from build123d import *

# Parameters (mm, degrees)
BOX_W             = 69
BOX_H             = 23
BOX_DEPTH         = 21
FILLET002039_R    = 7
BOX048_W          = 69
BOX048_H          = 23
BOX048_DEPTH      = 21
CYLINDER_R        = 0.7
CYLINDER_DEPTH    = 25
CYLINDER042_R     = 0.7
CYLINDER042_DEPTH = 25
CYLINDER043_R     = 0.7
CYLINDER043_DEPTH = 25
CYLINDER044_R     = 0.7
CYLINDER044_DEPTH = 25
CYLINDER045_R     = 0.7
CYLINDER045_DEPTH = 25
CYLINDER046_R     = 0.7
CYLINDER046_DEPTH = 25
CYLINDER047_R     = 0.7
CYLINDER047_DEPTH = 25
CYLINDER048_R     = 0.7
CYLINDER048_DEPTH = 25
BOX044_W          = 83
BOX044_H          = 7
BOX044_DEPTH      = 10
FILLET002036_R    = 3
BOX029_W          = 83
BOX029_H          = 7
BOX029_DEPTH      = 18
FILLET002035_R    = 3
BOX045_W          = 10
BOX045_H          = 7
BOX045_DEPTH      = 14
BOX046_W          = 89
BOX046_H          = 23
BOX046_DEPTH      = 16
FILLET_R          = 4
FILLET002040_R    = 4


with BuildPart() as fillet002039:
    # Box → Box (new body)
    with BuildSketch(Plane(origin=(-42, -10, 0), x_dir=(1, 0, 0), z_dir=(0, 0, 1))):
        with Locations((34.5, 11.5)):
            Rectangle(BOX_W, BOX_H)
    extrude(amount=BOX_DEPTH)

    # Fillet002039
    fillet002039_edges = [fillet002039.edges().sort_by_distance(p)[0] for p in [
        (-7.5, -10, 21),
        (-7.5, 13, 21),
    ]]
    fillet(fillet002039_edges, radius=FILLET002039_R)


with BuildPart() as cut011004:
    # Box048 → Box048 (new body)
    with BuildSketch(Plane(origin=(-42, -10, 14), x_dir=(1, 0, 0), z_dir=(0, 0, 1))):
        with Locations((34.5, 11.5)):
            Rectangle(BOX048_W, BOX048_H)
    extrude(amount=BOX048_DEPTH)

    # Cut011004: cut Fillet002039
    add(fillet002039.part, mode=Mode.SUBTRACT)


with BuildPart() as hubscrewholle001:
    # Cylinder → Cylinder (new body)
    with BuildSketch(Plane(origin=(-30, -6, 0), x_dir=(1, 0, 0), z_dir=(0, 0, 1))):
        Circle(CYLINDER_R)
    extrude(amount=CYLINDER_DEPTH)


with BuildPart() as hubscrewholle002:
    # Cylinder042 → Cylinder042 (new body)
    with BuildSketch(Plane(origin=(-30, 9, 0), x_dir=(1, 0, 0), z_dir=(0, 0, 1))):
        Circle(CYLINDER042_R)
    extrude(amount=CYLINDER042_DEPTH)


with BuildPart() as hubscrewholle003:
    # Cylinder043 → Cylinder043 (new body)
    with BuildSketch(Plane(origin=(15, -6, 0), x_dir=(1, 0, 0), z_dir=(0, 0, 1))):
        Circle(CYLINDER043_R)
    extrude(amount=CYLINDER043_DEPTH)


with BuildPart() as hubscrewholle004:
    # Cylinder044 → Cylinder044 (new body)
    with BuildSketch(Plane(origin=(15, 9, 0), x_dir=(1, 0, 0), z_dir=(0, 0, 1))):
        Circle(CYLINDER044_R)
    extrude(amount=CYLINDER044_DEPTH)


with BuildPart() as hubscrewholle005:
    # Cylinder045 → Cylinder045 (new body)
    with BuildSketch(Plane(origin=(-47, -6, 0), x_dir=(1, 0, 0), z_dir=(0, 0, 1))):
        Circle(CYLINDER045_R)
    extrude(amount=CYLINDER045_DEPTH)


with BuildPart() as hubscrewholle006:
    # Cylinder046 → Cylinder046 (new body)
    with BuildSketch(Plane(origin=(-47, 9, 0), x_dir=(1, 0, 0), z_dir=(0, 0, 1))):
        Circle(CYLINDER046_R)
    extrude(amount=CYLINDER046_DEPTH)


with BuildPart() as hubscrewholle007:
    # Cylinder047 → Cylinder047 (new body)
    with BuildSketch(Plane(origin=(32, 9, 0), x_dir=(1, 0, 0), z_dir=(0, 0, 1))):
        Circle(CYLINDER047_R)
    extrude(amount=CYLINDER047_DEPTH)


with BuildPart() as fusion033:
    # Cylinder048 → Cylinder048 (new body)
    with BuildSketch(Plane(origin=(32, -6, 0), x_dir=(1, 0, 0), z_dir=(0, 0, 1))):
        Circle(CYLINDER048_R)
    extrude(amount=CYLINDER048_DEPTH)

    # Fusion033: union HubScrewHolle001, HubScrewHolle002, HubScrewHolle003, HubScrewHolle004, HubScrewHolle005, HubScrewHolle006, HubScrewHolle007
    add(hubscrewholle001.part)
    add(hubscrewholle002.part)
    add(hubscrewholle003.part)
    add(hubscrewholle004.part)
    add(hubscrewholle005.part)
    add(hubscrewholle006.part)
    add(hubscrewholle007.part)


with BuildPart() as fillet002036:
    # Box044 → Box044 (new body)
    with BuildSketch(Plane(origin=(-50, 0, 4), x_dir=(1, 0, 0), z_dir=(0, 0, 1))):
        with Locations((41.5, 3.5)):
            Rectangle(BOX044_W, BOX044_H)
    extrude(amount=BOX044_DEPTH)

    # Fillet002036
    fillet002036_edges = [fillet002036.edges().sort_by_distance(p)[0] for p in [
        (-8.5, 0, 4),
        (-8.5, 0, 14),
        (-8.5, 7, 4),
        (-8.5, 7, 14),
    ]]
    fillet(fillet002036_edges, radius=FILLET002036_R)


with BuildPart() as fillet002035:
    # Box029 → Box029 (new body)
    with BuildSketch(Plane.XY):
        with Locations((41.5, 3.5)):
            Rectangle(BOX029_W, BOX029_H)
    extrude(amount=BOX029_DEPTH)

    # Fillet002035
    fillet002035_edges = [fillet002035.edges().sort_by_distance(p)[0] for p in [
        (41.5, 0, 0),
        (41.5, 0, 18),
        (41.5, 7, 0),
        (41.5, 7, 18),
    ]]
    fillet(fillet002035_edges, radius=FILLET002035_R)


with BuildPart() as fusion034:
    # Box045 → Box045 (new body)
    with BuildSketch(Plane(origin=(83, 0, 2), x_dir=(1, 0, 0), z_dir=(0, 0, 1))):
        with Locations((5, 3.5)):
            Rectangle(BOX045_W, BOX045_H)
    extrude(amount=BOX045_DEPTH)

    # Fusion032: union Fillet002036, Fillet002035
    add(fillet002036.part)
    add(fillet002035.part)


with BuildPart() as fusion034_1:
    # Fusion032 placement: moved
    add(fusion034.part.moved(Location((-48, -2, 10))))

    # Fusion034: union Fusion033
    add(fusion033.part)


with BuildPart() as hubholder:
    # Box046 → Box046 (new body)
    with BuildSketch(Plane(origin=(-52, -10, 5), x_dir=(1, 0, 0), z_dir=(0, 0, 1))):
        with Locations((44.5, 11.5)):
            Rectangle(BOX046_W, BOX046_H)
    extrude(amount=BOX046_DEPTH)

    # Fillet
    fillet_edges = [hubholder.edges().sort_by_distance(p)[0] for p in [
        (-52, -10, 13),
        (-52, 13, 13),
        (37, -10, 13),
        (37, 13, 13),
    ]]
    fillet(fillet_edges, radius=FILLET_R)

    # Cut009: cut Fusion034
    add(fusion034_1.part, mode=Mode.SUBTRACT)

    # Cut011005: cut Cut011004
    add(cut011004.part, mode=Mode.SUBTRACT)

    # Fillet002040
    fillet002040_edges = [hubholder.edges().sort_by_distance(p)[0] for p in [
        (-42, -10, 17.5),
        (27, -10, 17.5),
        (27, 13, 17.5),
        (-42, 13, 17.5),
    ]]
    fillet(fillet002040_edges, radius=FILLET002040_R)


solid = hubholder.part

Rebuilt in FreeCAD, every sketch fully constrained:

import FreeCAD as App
import Part
import Sketcher

V = App.Vector


def edges_at(feature, points):
    """Names of the edges that pass closest to the given points."""
    edges = feature.Shape.Edges
    near = lambda p: min(range(len(edges)), key=lambda i: edges[i].distToShape(Part.Vertex(*p))[0])
    return sorted({f"Edge{near(p) + 1}" for p in points})


def add_polygon(sketch, points):
    """Adds a closed chain of lines whose ends are joined by coincident constraints."""
    first, n = sketch.GeometryCount, len(points)
    for a, b in zip(points, points[1:] + points[:1]):
        sketch.addGeometry(Part.LineSegment(App.Vector(*a, 0), App.Vector(*b, 0)), False)
    for i in range(n):
        sketch.addConstraint(Sketcher.Constraint("Coincident", first + i, 2, first + (i + 1) % n, 1))

doc = App.newDocument("Part")
params = doc.addObject("Spreadsheet::Sheet", "Params")
for row, (alias, value) in enumerate([
    ("sketch1_width", "69 mm"),
    ("sketch1_height", "23 mm"),
    ("pad1_length", "21 mm"),
    ("fillet_radius", "7 mm"),
    ("sketch2_width", "69 mm"),
    ("sketch2_height", "23 mm"),
    ("pad2_length", "21 mm"),
    ("sketch3_diameter", "1.4 mm"),
    ("pad3_length", "25 mm"),
    ("sketch4_diameter", "1.4 mm"),
    ("pad4_length", "25 mm"),
    ("sketch5_diameter", "1.4 mm"),
    ("pad5_length", "25 mm"),
    ("sketch6_diameter", "1.4 mm"),
    ("pad6_length", "25 mm"),
    ("sketch7_diameter", "1.4 mm"),
    ("pad7_length", "25 mm"),
    ("sketch8_diameter", "1.4 mm"),
    ("pad8_length", "25 mm"),
    ("sketch9_diameter", "1.4 mm"),
    ("pad9_length", "25 mm"),
    ("sketch10_diameter", "1.4 mm"),
    ("pad10_length", "25 mm"),
    ("sketch11_width", "83 mm"),
    ("sketch11_height", "7 mm"),
    ("pad11_length", "10 mm"),
    ("fillet2_radius", "3 mm"),
    ("sketch12_width", "83 mm"),
    ("sketch12_height", "7 mm"),
    ("pad12_length", "18 mm"),
    ("fillet3_radius", "3 mm"),
    ("sketch13_width", "10 mm"),
    ("sketch13_height", "7 mm"),
    ("pad13_length", "14 mm"),
    ("sketch14_width", "89 mm"),
    ("sketch14_height", "23 mm"),
    ("pad14_length", "16 mm"),
    ("fillet4_radius", "4 mm"),
    ("fillet5_radius", "4 mm"),
], start=1):
    params.set(f"A{row}", alias)
    params.set(f"B{row}", "=" + value)
    params.setAlias(f"B{row}", alias)

body = doc.addObject("PartDesign::Body", "Body")

# Sketch on XY plane
sketch1 = body.newObject("Sketcher::SketchObject", "Sketch")
sketch1.AttachmentSupport = (doc.getObject("XY_Plane"), [""])
sketch1.MapMode = "FlatFace"
add_polygon(sketch1, [(-42, 13), (-42, -10), (27, -10), (27, 13)])  # lines 0-3
sketch1.addConstraint([
    Sketcher.Constraint("Vertical", 0),
    Sketcher.Constraint("Horizontal", 1),
    Sketcher.Constraint("Vertical", 2),
    Sketcher.Constraint("Horizontal", 3),
    Sketcher.Constraint("DistanceX", 1, 1, 1, 2, 69.0),
    Sketcher.Constraint("DistanceY", 0, 2, 0, 1, 23.0),
    Sketcher.Constraint("DistanceX", 0, 2, -1, 1, 42.0),
    Sketcher.Constraint("DistanceY", 0, 2, -1, 1, 10.0),
])
sketch1.setExpression("Constraints[8]", "Params.sketch1_width")
sketch1.setExpression("Constraints[9]", "Params.sketch1_height")
pad1 = body.newObject("PartDesign::Pad", "Pad")
pad1.Profile = sketch1
pad1.setExpression("Length", "Params.pad1_length")
doc.recompute()

fillet = body.newObject("PartDesign::Fillet", "Fillet")
fillet.Base = (pad1, edges_at(pad1, [(-7.5, -10, 21), (-7.5, 13, 21)]))
fillet.setExpression("Radius", "Params.fillet_radius")
body2 = doc.addObject("PartDesign::Body", "Body001")

# Sketch on XY plane
sketch2 = body2.newObject("Sketcher::SketchObject", "Sketch001")
sketch2.AttachmentSupport = (doc.getObject("XY_Plane001"), [""])
sketch2.MapMode = "FlatFace"
sketch2.AttachmentOffset = App.Placement(V(0, 0, 14), App.Rotation())
add_polygon(sketch2, [(-42, 13), (-42, -10), (27, -10), (27, 13)])  # lines 0-3
sketch2.addConstraint([
    Sketcher.Constraint("Vertical", 0),
    Sketcher.Constraint("Horizontal", 1),
    Sketcher.Constraint("Vertical", 2),
    Sketcher.Constraint("Horizontal", 3),
    Sketcher.Constraint("DistanceX", 1, 1, 1, 2, 69.0),
    Sketcher.Constraint("DistanceY", 0, 2, 0, 1, 23.0),
    Sketcher.Constraint("DistanceX", 0, 2, -1, 1, 42.0),
    Sketcher.Constraint("DistanceY", 0, 2, -1, 1, 10.0),
])
sketch2.setExpression("Constraints[8]", "Params.sketch2_width")
sketch2.setExpression("Constraints[9]", "Params.sketch2_height")
pad2 = body2.newObject("PartDesign::Pad", "Pad001")
pad2.Profile = sketch2
pad2.setExpression("Length", "Params.pad2_length")
doc.recompute()

boolean = body2.newObject("PartDesign::Boolean", "Boolean")
boolean.Type = "Cut"
boolean.addObjects([body])
body3 = doc.addObject("PartDesign::Body", "Body002")

# Sketch on XY plane
sketch3 = body3.newObject("Sketcher::SketchObject", "Sketch002")
sketch3.AttachmentSupport = (doc.getObject("XY_Plane002"), [""])
sketch3.MapMode = "FlatFace"
sketch3.addGeometry(Part.Circle(V(-30, -6, 0), V(0, 0, 1), 0.7), False)
sketch3.addConstraint([
    Sketcher.Constraint("Diameter", 0, 1.4),
    Sketcher.Constraint("DistanceX", 0, 3, -1, 1, 30.0),
    Sketcher.Constraint("DistanceY", 0, 3, -1, 1, 6.0),
])
sketch3.setExpression("Constraints[0]", "Params.sketch3_diameter")
pad3 = body3.newObject("PartDesign::Pad", "Pad002")
pad3.Profile = sketch3
pad3.setExpression("Length", "Params.pad3_length")
body4 = doc.addObject("PartDesign::Body", "Body003")

# Sketch on XY plane
sketch4 = body4.newObject("Sketcher::SketchObject", "Sketch003")
sketch4.AttachmentSupport = (doc.getObject("XY_Plane003"), [""])
sketch4.MapMode = "FlatFace"
sketch4.addGeometry(Part.Circle(V(-30, 9, 0), V(0, 0, 1), 0.7), False)
sketch4.addConstraint([
    Sketcher.Constraint("Diameter", 0, 1.4),
    Sketcher.Constraint("DistanceX", 0, 3, -1, 1, 30.0),
    Sketcher.Constraint("DistanceY", -1, 1, 0, 3, 9.0),
])
sketch4.setExpression("Constraints[0]", "Params.sketch4_diameter")
pad4 = body4.newObject("PartDesign::Pad", "Pad003")
pad4.Profile = sketch4
pad4.setExpression("Length", "Params.pad4_length")
body5 = doc.addObject("PartDesign::Body", "Body004")

# Sketch on XY plane
sketch5 = body5.newObject("Sketcher::SketchObject", "Sketch004")
sketch5.AttachmentSupport = (doc.getObject("XY_Plane004"), [""])
sketch5.MapMode = "FlatFace"
sketch5.addGeometry(Part.Circle(V(15, -6, 0), V(0, 0, 1), 0.7), False)
sketch5.addConstraint([
    Sketcher.Constraint("Diameter", 0, 1.4),
    Sketcher.Constraint("DistanceX", -1, 1, 0, 3, 15.0),
    Sketcher.Constraint("DistanceY", 0, 3, -1, 1, 6.0),
])
sketch5.setExpression("Constraints[0]", "Params.sketch5_diameter")
pad5 = body5.newObject("PartDesign::Pad", "Pad004")
pad5.Profile = sketch5
pad5.setExpression("Length", "Params.pad5_length")
body6 = doc.addObject("PartDesign::Body", "Body005")

# Sketch on XY plane
sketch6 = body6.newObject("Sketcher::SketchObject", "Sketch005")
sketch6.AttachmentSupport = (doc.getObject("XY_Plane005"), [""])
sketch6.MapMode = "FlatFace"
sketch6.addGeometry(Part.Circle(V(15, 9, 0), V(0, 0, 1), 0.7), False)
sketch6.addConstraint([
    Sketcher.Constraint("Diameter", 0, 1.4),
    Sketcher.Constraint("DistanceX", -1, 1, 0, 3, 15.0),
    Sketcher.Constraint("DistanceY", -1, 1, 0, 3, 9.0),
])
sketch6.setExpression("Constraints[0]", "Params.sketch6_diameter")
pad6 = body6.newObject("PartDesign::Pad", "Pad005")
pad6.Profile = sketch6
pad6.setExpression("Length", "Params.pad6_length")
body7 = doc.addObject("PartDesign::Body", "Body006")

# Sketch on XY plane
sketch7 = body7.newObject("Sketcher::SketchObject", "Sketch006")
sketch7.AttachmentSupport = (doc.getObject("XY_Plane006"), [""])
sketch7.MapMode = "FlatFace"
sketch7.addGeometry(Part.Circle(V(-47, -6, 0), V(0, 0, 1), 0.7), False)
sketch7.addConstraint([
    Sketcher.Constraint("Diameter", 0, 1.4),
    Sketcher.Constraint("DistanceX", 0, 3, -1, 1, 47.0),
    Sketcher.Constraint("DistanceY", 0, 3, -1, 1, 6.0),
])
sketch7.setExpression("Constraints[0]", "Params.sketch7_diameter")
pad7 = body7.newObject("PartDesign::Pad", "Pad006")
pad7.Profile = sketch7
pad7.setExpression("Length", "Params.pad7_length")
body8 = doc.addObject("PartDesign::Body", "Body007")

# Sketch on XY plane
sketch8 = body8.newObject("Sketcher::SketchObject", "Sketch007")
sketch8.AttachmentSupport = (doc.getObject("XY_Plane007"), [""])
sketch8.MapMode = "FlatFace"
sketch8.addGeometry(Part.Circle(V(-47, 9, 0), V(0, 0, 1), 0.7), False)
sketch8.addConstraint([
    Sketcher.Constraint("Diameter", 0, 1.4),
    Sketcher.Constraint("DistanceX", 0, 3, -1, 1, 47.0),
    Sketcher.Constraint("DistanceY", -1, 1, 0, 3, 9.0),
])
sketch8.setExpression("Constraints[0]", "Params.sketch8_diameter")
pad8 = body8.newObject("PartDesign::Pad", "Pad007")
pad8.Profile = sketch8
pad8.setExpression("Length", "Params.pad8_length")
body9 = doc.addObject("PartDesign::Body", "Body008")

# Sketch on XY plane
sketch9 = body9.newObject("Sketcher::SketchObject", "Sketch008")
sketch9.AttachmentSupport = (doc.getObject("XY_Plane008"), [""])
sketch9.MapMode = "FlatFace"
sketch9.addGeometry(Part.Circle(V(32, 9, 0), V(0, 0, 1), 0.7), False)
sketch9.addConstraint([
    Sketcher.Constraint("Diameter", 0, 1.4),
    Sketcher.Constraint("DistanceX", -1, 1, 0, 3, 32.0),
    Sketcher.Constraint("DistanceY", -1, 1, 0, 3, 9.0),
])
sketch9.setExpression("Constraints[0]", "Params.sketch9_diameter")
pad9 = body9.newObject("PartDesign::Pad", "Pad008")
pad9.Profile = sketch9
pad9.setExpression("Length", "Params.pad9_length")
body10 = doc.addObject("PartDesign::Body", "Body009")
body10.AllowCompound = True

# Sketch on XY plane
sketch10 = body10.newObject("Sketcher::SketchObject", "Sketch009")
sketch10.AttachmentSupport = (doc.getObject("XY_Plane009"), [""])
sketch10.MapMode = "FlatFace"
sketch10.addGeometry(Part.Circle(V(32, -6, 0), V(0, 0, 1), 0.7), False)
sketch10.addConstraint([
    Sketcher.Constraint("Diameter", 0, 1.4),
    Sketcher.Constraint("DistanceX", -1, 1, 0, 3, 32.0),
    Sketcher.Constraint("DistanceY", 0, 3, -1, 1, 6.0),
])
sketch10.setExpression("Constraints[0]", "Params.sketch10_diameter")
pad10 = body10.newObject("PartDesign::Pad", "Pad009")
pad10.Profile = sketch10
pad10.setExpression("Length", "Params.pad10_length")
doc.recompute()

boolean2 = body10.newObject("PartDesign::Boolean", "Boolean001")
boolean2.Type = "Fuse"
boolean2.addObjects([body3])
doc.recompute()

boolean3 = body10.newObject("PartDesign::Boolean", "Boolean002")
boolean3.Type = "Fuse"
boolean3.addObjects([body4])
doc.recompute()

boolean4 = body10.newObject("PartDesign::Boolean", "Boolean003")
boolean4.Type = "Fuse"
boolean4.addObjects([body5])
doc.recompute()

boolean5 = body10.newObject("PartDesign::Boolean", "Boolean004")
boolean5.Type = "Fuse"
boolean5.addObjects([body6])
doc.recompute()

boolean6 = body10.newObject("PartDesign::Boolean", "Boolean005")
boolean6.Type = "Fuse"
boolean6.addObjects([body7])
doc.recompute()

boolean7 = body10.newObject("PartDesign::Boolean", "Boolean006")
boolean7.Type = "Fuse"
boolean7.addObjects([body8])
doc.recompute()

boolean8 = body10.newObject("PartDesign::Boolean", "Boolean007")
boolean8.Type = "Fuse"
boolean8.addObjects([body9])
body11 = doc.addObject("PartDesign::Body", "Body010")

# Sketch on XY plane
sketch11 = body11.newObject("Sketcher::SketchObject", "Sketch010")
sketch11.AttachmentSupport = (doc.getObject("XY_Plane010"), [""])
sketch11.MapMode = "FlatFace"
sketch11.AttachmentOffset = App.Placement(V(0, 0, 4), App.Rotation())
add_polygon(sketch11, [(-50, 7), (-50, 0), (33, 0), (33, 7)])  # lines 0-3
sketch11.addConstraint([
    Sketcher.Constraint("Vertical", 0),
    Sketcher.Constraint("Horizontal", 1),
    Sketcher.Constraint("Vertical", 2),
    Sketcher.Constraint("Horizontal", 3),
    Sketcher.Constraint("PointOnObject", 0, 2, -1),
    Sketcher.Constraint("DistanceX", 1, 1, 1, 2, 83.0),
    Sketcher.Constraint("DistanceY", 0, 2, 0, 1, 7.0),
    Sketcher.Constraint("DistanceX", 0, 2, -1, 1, 50.0),
])
sketch11.setExpression("Constraints[9]", "Params.sketch11_width")
sketch11.setExpression("Constraints[10]", "Params.sketch11_height")
pad11 = body11.newObject("PartDesign::Pad", "Pad010")
pad11.Profile = sketch11
pad11.setExpression("Length", "Params.pad11_length")
doc.recompute()

fillet2 = body11.newObject("PartDesign::Fillet", "Fillet001")
fillet2.Base = (pad11, edges_at(pad11, [
    (-8.5, 0, 4),
    (-8.5, 0, 14),
    (-8.5, 7, 4),
    (-8.5, 7, 14),
]))
fillet2.setExpression("Radius", "Params.fillet2_radius")
body12 = doc.addObject("PartDesign::Body", "Body011")

# Sketch on XY plane
sketch12 = body12.newObject("Sketcher::SketchObject", "Sketch011")
sketch12.AttachmentSupport = (doc.getObject("XY_Plane011"), [""])
sketch12.MapMode = "FlatFace"
add_polygon(sketch12, [(0, 7), (0, 0), (83, 0), (83, 7)])  # lines 0-3
sketch12.addConstraint([
    Sketcher.Constraint("Vertical", 0),
    Sketcher.Constraint("Horizontal", 1),
    Sketcher.Constraint("Vertical", 2),
    Sketcher.Constraint("Horizontal", 3),
    Sketcher.Constraint("Coincident", 0, 2, -1, 1),
    Sketcher.Constraint("DistanceX", 1, 1, 1, 2, 83.0),
    Sketcher.Constraint("DistanceY", 0, 2, 0, 1, 7.0),
])
sketch12.setExpression("Constraints[9]", "Params.sketch12_width")
sketch12.setExpression("Constraints[10]", "Params.sketch12_height")
pad12 = body12.newObject("PartDesign::Pad", "Pad011")
pad12.Profile = sketch12
pad12.setExpression("Length", "Params.pad12_length")
doc.recompute()

fillet3 = body12.newObject("PartDesign::Fillet", "Fillet002")
fillet3.Base = (pad12, edges_at(pad12, [
    (41.5, 0, 0),
    (41.5, 0, 18),
    (41.5, 7, 0),
    (41.5, 7, 18),
]))
fillet3.setExpression("Radius", "Params.fillet3_radius")
body13 = doc.addObject("PartDesign::Body", "Body012")
body13.AllowCompound = True

# Sketch on XY plane
sketch13 = body13.newObject("Sketcher::SketchObject", "Sketch012")
sketch13.AttachmentSupport = (doc.getObject("XY_Plane012"), [""])
sketch13.MapMode = "FlatFace"
sketch13.AttachmentOffset = App.Placement(V(0, 0, 2), App.Rotation())
add_polygon(sketch13, [(83, 7), (83, 0), (93, 0), (93, 7)])  # lines 0-3
sketch13.addConstraint([
    Sketcher.Constraint("Vertical", 0),
    Sketcher.Constraint("Horizontal", 1),
    Sketcher.Constraint("Vertical", 2),
    Sketcher.Constraint("Horizontal", 3),
    Sketcher.Constraint("PointOnObject", 0, 2, -1),
    Sketcher.Constraint("DistanceX", 1, 1, 1, 2, 10.0),
    Sketcher.Constraint("DistanceY", 0, 2, 0, 1, 7.0),
    Sketcher.Constraint("DistanceX", -1, 1, 0, 2, 83.0),
])
sketch13.setExpression("Constraints[9]", "Params.sketch13_width")
sketch13.setExpression("Constraints[10]", "Params.sketch13_height")
pad13 = body13.newObject("PartDesign::Pad", "Pad012")
pad13.Profile = sketch13
pad13.setExpression("Length", "Params.pad13_length")
doc.recompute()

boolean9 = body13.newObject("PartDesign::Boolean", "Boolean008")
boolean9.Type = "Fuse"
boolean9.addObjects([body11])
doc.recompute()

boolean10 = body13.newObject("PartDesign::Boolean", "Boolean009")
boolean10.Type = "Fuse"
boolean10.addObjects([body12])
body14 = doc.addObject("PartDesign::Body", "Body013")
body14.AllowCompound = True
doc.recompute()

body13.Placement = App.Placement(V(-48, -2, 10), App.Rotation(V(0, 0, 1), 0))
boolean11 = body14.newObject("PartDesign::Boolean", "Boolean010")
boolean11.Type = "Fuse"
boolean11.addObjects([body13])
doc.recompute()

boolean12 = body14.newObject("PartDesign::Boolean", "Boolean011")
boolean12.Type = "Fuse"
boolean12.addObjects([body10])
body15 = doc.addObject("PartDesign::Body", "Body014")

# Sketch on XY plane
sketch14 = body15.newObject("Sketcher::SketchObject", "Sketch013")
sketch14.AttachmentSupport = (doc.getObject("XY_Plane014"), [""])
sketch14.MapMode = "FlatFace"
sketch14.AttachmentOffset = App.Placement(V(0, 0, 5), App.Rotation())
add_polygon(sketch14, [(-52, 13), (-52, -10), (37, -10), (37, 13)])  # lines 0-3
sketch14.addConstraint([
    Sketcher.Constraint("Vertical", 0),
    Sketcher.Constraint("Horizontal", 1),
    Sketcher.Constraint("Vertical", 2),
    Sketcher.Constraint("Horizontal", 3),
    Sketcher.Constraint("DistanceX", 1, 1, 1, 2, 89.0),
    Sketcher.Constraint("DistanceY", 0, 2, 0, 1, 23.0),
    Sketcher.Constraint("DistanceX", 0, 2, -1, 1, 52.0),
    Sketcher.Constraint("DistanceY", 0, 2, -1, 1, 10.0),
])
sketch14.setExpression("Constraints[8]", "Params.sketch14_width")
sketch14.setExpression("Constraints[9]", "Params.sketch14_height")
pad14 = body15.newObject("PartDesign::Pad", "Pad013")
pad14.Profile = sketch14
pad14.setExpression("Length", "Params.pad14_length")
doc.recompute()

fillet4 = body15.newObject("PartDesign::Fillet", "Fillet003")
fillet4.Base = (pad14, edges_at(pad14, [
    (-52, -10, 13),
    (-52, 13, 13),
    (37, -10, 13),
    (37, 13, 13),
]))
fillet4.setExpression("Radius", "Params.fillet4_radius")
doc.recompute()

boolean13 = body15.newObject("PartDesign::Boolean", "Boolean012")
boolean13.Type = "Cut"
boolean13.addObjects([body14])
doc.recompute()

boolean14 = body15.newObject("PartDesign::Boolean", "Boolean013")
boolean14.Type = "Cut"
boolean14.addObjects([body2])
doc.recompute()

fillet5 = body15.newObject("PartDesign::Fillet", "Fillet004")
fillet5.Base = (boolean14, edges_at(boolean14, [
    (-42, -10, 17.5),
    (27, -10, 17.5),
    (27, 13, 17.5),
    (-42, 13, 17.5),
]))
fillet5.setExpression("Radius", "Params.fillet5_radius")

doc.recompute()
